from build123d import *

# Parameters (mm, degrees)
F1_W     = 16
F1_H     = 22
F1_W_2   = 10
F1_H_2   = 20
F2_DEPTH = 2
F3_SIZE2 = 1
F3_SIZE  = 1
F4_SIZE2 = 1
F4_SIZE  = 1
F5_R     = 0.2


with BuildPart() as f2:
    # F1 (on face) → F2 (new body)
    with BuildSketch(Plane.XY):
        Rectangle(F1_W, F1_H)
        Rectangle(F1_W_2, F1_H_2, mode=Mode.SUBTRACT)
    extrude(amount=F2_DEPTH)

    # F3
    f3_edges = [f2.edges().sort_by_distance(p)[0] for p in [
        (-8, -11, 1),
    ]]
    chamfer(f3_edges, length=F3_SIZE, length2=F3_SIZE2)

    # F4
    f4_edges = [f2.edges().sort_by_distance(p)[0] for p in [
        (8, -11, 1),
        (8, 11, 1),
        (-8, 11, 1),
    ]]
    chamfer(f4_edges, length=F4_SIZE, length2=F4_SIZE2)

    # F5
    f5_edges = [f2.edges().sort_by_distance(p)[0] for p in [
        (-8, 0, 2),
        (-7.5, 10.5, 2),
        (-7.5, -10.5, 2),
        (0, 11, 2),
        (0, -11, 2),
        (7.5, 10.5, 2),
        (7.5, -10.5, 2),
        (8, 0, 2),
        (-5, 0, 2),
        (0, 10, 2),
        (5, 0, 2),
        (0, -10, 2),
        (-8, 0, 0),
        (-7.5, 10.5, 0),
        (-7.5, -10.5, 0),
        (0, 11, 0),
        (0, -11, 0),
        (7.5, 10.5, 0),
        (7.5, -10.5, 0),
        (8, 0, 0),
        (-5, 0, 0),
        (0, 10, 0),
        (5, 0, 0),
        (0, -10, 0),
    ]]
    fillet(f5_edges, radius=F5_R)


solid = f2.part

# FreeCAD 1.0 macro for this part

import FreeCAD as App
import Part
import Sketcher

V = App.Vector


def edges_at(feature, points):
    """Names of the edges that pass closest to the given points."""
    edges = feature.Shape.Edges
    near = lambda p: min(range(len(edges)), key=lambda i: edges[i].distToShape(Part.Vertex(*p))[0])
    return sorted({f"Edge{near(p) + 1}" for p in points})


def add_polygon(sketch, points):
    """Adds a closed chain of lines whose ends are joined by coincident constraints."""
    first, n = sketch.GeometryCount, len(points)
    for a, b in zip(points, points[1:] + points[:1]):
        sketch.addGeometry(Part.LineSegment(App.Vector(*a, 0), App.Vector(*b, 0)), False)
    for i in range(n):
        sketch.addConstraint(Sketcher.Constraint("Coincident", first + i, 2, first + (i + 1) % n, 1))

doc = App.newDocument("Part")
body = doc.addObject("PartDesign::Body", "Body")

# Sketch on XY plane
sketch1 = body.newObject("Sketcher::SketchObject", "Sketch")
sketch1.AttachmentSupport = (doc.getObject("XY_Plane"), [""])
sketch1.MapMode = "FlatFace"
add_polygon(sketch1, [(-8, 11), (-8, -11), (8, -11), (8, 11)])  # lines 0-3
add_polygon(sketch1, [(5, -10), (-5, -10), (-5, 10), (5, 10)])  # lines 4-7
sketch1.addConstraint([
    Sketcher.Constraint("Vertical", 0),
    Sketcher.Constraint("Horizontal", 1),
    Sketcher.Constraint("Vertical", 2),
    Sketcher.Constraint("Horizontal", 3),
    Sketcher.Constraint("Horizontal", 4),
    Sketcher.Constraint("Vertical", 5),
    Sketcher.Constraint("Horizontal", 6),
    Sketcher.Constraint("Vertical", 7),
    Sketcher.Constraint("Symmetric", 0, 2, 2, 2, -1, 1),
    Sketcher.Constraint("Symmetric", 4, 2, 6, 2, -1, 1),
    Sketcher.Constraint("DistanceX", 1, 1, 1, 2, 16.0),
    Sketcher.Constraint("DistanceX", 4, 2, 4, 1, 10.0),
    Sketcher.Constraint("DistanceY", 0, 2, 0, 1, 22.0),
    Sketcher.Constraint("DistanceY", 5, 1, 5, 2, 20.0),
])
pad1 = body.newObject("PartDesign::Pad", "Pad")
pad1.Profile = sketch1
pad1.Length = 2
doc.recompute()

chamfer = body.newObject("PartDesign::Chamfer", "Chamfer")
chamfer.Base = (pad1, edges_at(pad1, [(-8, -11, 1)]))
chamfer.ChamferType = "Two distances"
chamfer.Size = 1
chamfer.Size2 = 1
doc.recompute()

chamfer2 = body.newObject("PartDesign::Chamfer", "Chamfer001")
chamfer2.Base = (chamfer, edges_at(chamfer, [(8, -11, 1), (8, 11, 1), (-8, 11, 1)]))
chamfer2.ChamferType = "Two distances"
chamfer2.Size = 1
chamfer2.Size2 = 1
doc.recompute()

fillet = body.newObject("PartDesign::Fillet", "Fillet")
fillet.Base = (chamfer2, edges_at(chamfer2, [
    (-8, 0, 2),
    (-7.5, 10.5, 2),
    (-7.5, -10.5, 2),
    (0, 11, 2),
    (0, -11, 2),
    (7.5, 10.5, 2),
    (7.5, -10.5, 2),
    (8, 0, 2),
    (-5, 0, 2),
    (0, 10, 2),
    (5, 0, 2),
    (0, -10, 2),
    (-8, 0, 0),
    (-7.5, 10.5, 0),
    (-7.5, -10.5, 0),
    (0, 11, 0),
    (0, -11, 0),
    (7.5, 10.5, 0),
    (7.5, -10.5, 0),
    (8, 0, 0),
    (-5, 0, 0),
    (0, 10, 0),
    (5, 0, 0),
    (0, -10, 0),
]))
fillet.Radius = 0.2

doc.recompute()
